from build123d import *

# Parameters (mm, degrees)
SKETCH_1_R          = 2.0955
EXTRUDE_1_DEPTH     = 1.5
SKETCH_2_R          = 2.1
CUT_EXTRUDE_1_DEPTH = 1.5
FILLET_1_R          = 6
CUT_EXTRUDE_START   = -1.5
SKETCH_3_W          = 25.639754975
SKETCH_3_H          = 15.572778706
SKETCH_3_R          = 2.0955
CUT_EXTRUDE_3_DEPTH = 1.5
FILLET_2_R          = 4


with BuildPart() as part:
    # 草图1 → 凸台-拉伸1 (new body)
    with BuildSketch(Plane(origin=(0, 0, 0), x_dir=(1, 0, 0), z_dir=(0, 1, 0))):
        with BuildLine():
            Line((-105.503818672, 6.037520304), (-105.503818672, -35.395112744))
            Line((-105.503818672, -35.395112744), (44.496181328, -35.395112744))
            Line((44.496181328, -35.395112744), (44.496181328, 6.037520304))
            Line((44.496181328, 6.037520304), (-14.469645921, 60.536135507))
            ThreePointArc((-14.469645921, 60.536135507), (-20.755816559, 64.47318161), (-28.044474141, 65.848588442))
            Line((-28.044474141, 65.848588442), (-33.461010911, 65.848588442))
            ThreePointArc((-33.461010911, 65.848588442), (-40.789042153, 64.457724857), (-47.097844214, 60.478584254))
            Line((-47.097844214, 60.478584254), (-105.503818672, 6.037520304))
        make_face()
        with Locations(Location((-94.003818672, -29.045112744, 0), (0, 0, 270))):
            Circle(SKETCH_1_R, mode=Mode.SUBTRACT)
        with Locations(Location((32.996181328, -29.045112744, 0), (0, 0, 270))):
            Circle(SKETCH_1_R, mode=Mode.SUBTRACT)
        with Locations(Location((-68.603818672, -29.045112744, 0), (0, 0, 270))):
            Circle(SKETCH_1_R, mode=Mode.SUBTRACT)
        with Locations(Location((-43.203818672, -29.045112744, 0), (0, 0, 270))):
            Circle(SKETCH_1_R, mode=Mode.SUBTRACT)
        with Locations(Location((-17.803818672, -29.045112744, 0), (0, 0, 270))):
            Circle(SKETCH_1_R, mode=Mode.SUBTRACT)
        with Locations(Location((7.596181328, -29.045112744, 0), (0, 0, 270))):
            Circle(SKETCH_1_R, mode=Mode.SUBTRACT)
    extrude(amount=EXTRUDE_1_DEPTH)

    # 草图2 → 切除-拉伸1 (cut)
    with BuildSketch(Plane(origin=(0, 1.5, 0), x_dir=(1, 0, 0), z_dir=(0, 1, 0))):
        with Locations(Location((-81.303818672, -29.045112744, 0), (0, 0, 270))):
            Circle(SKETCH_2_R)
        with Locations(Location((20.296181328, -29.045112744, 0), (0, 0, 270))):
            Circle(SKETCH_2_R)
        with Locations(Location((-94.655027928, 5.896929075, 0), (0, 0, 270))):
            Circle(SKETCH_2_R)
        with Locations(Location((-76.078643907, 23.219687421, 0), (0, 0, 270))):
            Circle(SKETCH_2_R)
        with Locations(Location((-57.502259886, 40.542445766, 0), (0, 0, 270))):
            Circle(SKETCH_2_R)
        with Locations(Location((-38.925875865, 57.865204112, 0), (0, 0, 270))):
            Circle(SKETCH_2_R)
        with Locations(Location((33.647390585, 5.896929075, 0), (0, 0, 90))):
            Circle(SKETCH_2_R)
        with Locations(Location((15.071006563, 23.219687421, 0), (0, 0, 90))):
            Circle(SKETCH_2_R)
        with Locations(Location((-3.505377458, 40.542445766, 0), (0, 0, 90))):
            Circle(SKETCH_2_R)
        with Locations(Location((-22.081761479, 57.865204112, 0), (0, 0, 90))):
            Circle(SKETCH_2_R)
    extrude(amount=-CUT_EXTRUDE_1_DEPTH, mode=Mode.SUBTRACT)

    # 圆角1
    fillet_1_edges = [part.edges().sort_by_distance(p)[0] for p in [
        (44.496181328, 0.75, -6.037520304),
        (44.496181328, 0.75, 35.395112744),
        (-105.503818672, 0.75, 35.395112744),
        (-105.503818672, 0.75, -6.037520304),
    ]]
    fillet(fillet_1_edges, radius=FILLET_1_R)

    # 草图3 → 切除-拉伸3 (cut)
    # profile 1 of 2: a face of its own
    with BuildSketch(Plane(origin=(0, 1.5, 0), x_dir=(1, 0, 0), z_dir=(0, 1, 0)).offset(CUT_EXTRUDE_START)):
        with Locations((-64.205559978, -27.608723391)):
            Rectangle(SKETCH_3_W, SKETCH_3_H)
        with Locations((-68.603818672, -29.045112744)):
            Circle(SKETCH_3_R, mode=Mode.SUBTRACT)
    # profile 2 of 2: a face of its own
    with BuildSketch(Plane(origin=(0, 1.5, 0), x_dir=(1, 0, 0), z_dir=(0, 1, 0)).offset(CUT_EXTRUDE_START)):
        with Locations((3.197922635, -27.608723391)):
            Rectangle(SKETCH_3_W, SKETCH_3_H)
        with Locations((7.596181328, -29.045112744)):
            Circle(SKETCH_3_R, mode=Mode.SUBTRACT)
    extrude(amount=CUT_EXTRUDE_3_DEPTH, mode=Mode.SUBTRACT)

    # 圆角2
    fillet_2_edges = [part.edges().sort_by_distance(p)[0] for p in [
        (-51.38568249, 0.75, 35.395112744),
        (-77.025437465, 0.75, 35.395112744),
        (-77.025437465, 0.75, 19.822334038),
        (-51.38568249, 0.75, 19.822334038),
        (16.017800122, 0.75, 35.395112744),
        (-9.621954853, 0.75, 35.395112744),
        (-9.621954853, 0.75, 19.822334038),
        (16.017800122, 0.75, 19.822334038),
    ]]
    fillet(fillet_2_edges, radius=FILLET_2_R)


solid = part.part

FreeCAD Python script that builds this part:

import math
import FreeCAD as App
import Part
import Sketcher
from FreeCAD import Vector


def edges_at(feature, points):
    """Names of the edges that pass closest to the given points."""
    edges = feature.Shape.Edges
    near = lambda p: min(range(len(edges)), key=lambda i: edges[i].distToShape(Part.Vertex(*p))[0])
    return sorted({f"Edge{near(p) + 1}" for p in points})


def add_polygon(sketch, points):
    """Adds a closed chain of lines whose ends are joined by coincident constraints."""
    first, n = sketch.GeometryCount, len(points)
    for a, b in zip(points, points[1:] + points[:1]):
        sketch.addGeometry(Part.LineSegment(App.Vector(*a, 0), App.Vector(*b, 0)), False)
    for i in range(n):
        sketch.addConstraint(Sketcher.Constraint("Coincident", first + i, 2, first + (i + 1) % n, 1))

doc = App.newDocument("Part")
body = doc.addObject("PartDesign::Body", "Body")

# Sketch on XZ plane
sketch1 = body.newObject("Sketcher::SketchObject", "Sketch")
sketch1.AttachmentSupport = (doc.getObject("XZ_Plane"), [""])
sketch1.MapMode = "FlatFace"
sketch1.addGeometry(Part.LineSegment(Vector(-105.503819, -6.03752, 0), Vector(-105.503819, 35.395113, 0)), False)
sketch1.addGeometry(Part.LineSegment(Vector(-105.503819, 35.395113, 0), Vector(44.496181, 35.395113, 0)), False)
sketch1.addGeometry(Part.LineSegment(Vector(44.496181, 35.395113, 0), Vector(44.496181, -6.03752, 0)), False)
sketch1.addGeometry(Part.LineSegment(Vector(44.496181, -6.03752, 0), Vector(-14.469646, -60.536136, 0)), False)
sketch1.addGeometry(Part.ArcOfCircle(Part.Circle(Vector(-28.044474, -45.848588, 0), Vector(0, 0, 1), 20), math.radians(-90), math.radians(-47.254629)), False)
sketch1.addGeometry(Part.LineSegment(Vector(-28.044474, -65.848588, 0), Vector(-33.461011, -65.848588, 0)), False)
sketch1.addGeometry(Part.ArcOfCircle(Part.Circle(Vector(-33.461011, -45.848588, 0), Vector(0, 0, 1), 20), math.radians(-132.987725), math.radians(-90)), False)
sketch1.addGeometry(Part.LineSegment(Vector(-47.097844, -60.478584, 0), Vector(-105.503819, -6.03752, 0)), False)
sketch1.addGeometry(Part.Circle(Vector(-94.003819, 29.045113, 0), Vector(0, 0, 1), 2.0955), False)
sketch1.addGeometry(Part.Circle(Vector(-68.603819, 29.045113, 0), Vector(0, 0, 1), 2.0955), False)
sketch1.addGeometry(Part.Circle(Vector(-43.203819, 29.045113, 0), Vector(0, 0, 1), 2.0955), False)
sketch1.addGeometry(Part.Circle(Vector(-17.803819, 29.045113, 0), Vector(0, 0, 1), 2.0955), False)
sketch1.addGeometry(Part.Circle(Vector(7.596181, 29.045113, 0), Vector(0, 0, 1), 2.0955), False)
sketch1.addGeometry(Part.Circle(Vector(32.996181, 29.045113, 0), Vector(0, 0, 1), 2.0955), False)
sketch1.addConstraint(Sketcher.Constraint("Coincident", 0, 2, 1, 1))
sketch1.addConstraint(Sketcher.Constraint("Coincident", 1, 2, 2, 1))
sketch1.addConstraint(Sketcher.Constraint("Coincident", 2, 2, 3, 1))
sketch1.addConstraint(Sketcher.Constraint("Tangent", 3, 2, 4, 2))
sketch1.addConstraint(Sketcher.Constraint("Tangent", 4, 1, 5, 1))
sketch1.addConstraint(Sketcher.Constraint("Tangent", 5, 2, 6, 2))
sketch1.addConstraint(Sketcher.Constraint("Tangent", 6, 1, 7, 1))
sketch1.addConstraint(Sketcher.Constraint("Coincident", 7, 2, 0, 1))
sketch1.addConstraint(Sketcher.Constraint("Vertical", 0))
sketch1.addConstraint(Sketcher.Constraint("Horizontal", 1))
sketch1.addConstraint(Sketcher.Constraint("Vertical", 2))
sketch1.addConstraint(Sketcher.Constraint("Horizontal", 5))
sketch1.addConstraint(Sketcher.Constraint("Equal", 4, 6))
sketch1.addConstraint(Sketcher.Constraint("Equal", 8, 9))
sketch1.addConstraint(Sketcher.Constraint("Equal", 9, 10))
sketch1.addConstraint(Sketcher.Constraint("Equal", 10, 11))
sketch1.addConstraint(Sketcher.Constraint("Equal", 11, 12))
sketch1.addConstraint(Sketcher.Constraint("Equal", 12, 13))
sketch1.addConstraint(Sketcher.Constraint("Horizontal", 8, 3, 9, 3))
sketch1.addConstraint(Sketcher.Constraint("Horizontal", 9, 3, 10, 3))
sketch1.addConstraint(Sketcher.Constraint("Horizontal", 10, 3, 11, 3))
sketch1.addConstraint(Sketcher.Constraint("Horizontal", 11, 3, 12, 3))
sketch1.addConstraint(Sketcher.Constraint("Horizontal", 12, 3, 13, 3))
sketch1.addConstraint(Sketcher.Constraint("Horizontal", 2, 2, 7, 2))
sketch1.addConstraint(Sketcher.Constraint("Radius", 4, 20.0))
sketch1.addConstraint(Sketcher.Constraint("DistanceX", 1, 1, 1, 2, 150.0))
sketch1.addConstraint(Sketcher.Constraint("Diameter", 8, 4.191))
sketch1.addConstraint(Sketcher.Constraint("DistanceX", 8, 3, 9, 3, 25.4))
sketch1.addConstraint(Sketcher.Constraint("DistanceX", 9, 3, 10, 3, 25.4))
sketch1.addConstraint(Sketcher.Constraint("DistanceX", 10, 3, 11, 3, 25.4))
sketch1.addConstraint(Sketcher.Constraint("DistanceX", 11, 3, 12, 3, 25.4))
sketch1.addConstraint(Sketcher.Constraint("DistanceX", 12, 3, 13, 3, 25.4))
sketch1.addConstraint(Sketcher.Constraint("DistanceX", 0, 2, 8, 3, 11.5))
sketch1.addConstraint(Sketcher.Constraint("DistanceY", 8, 3, 0, 2, 6.35))
sketch1.addConstraint(Sketcher.Constraint("DistanceY", 6, 3, 8, 3, 74.893701))
sketch1.addConstraint(Sketcher.Constraint("DistanceX", 6, 1, 3, 2, 32.628198))
sketch1.addConstraint(Sketcher.Constraint("DistanceX", 5, 2, 5, 1, 5.416537))
sketch1.addConstraint(Sketcher.Constraint("DistanceY", 4, 3, -1, 1, 45.848588))
sketch1.addConstraint(Sketcher.Constraint("DistanceX", 6, 3, -1, 1, 33.461011))
sketch1.addConstraint(Sketcher.Constraint("DistanceX", 8, 3, -1, 1, 94.003819))
pad1 = body.newObject("PartDesign::Pad", "Pad")
pad1.Profile = sketch1
pad1.Length = 1.5
pad1.Reversed = True

# Sketch on XZ plane
sketch2 = body.newObject("Sketcher::SketchObject", "Sketch001")
sketch2.AttachmentSupport = (doc.getObject("XZ_Plane"), [""])
sketch2.MapMode = "FlatFace"
sketch2.AttachmentOffset = App.Placement(Vector(0, 0, -1.5), App.Rotation())
sketch2.addGeometry(Part.Circle(Vector(-81.303819, 29.045113, 0), Vector(0, 0, 1), 2.1), False)
sketch2.addGeometry(Part.Circle(Vector(20.296181, 29.045113, 0), Vector(0, 0, 1), 2.1), False)
sketch2.addGeometry(Part.Circle(Vector(-94.655028, -5.896929, 0), Vector(0, 0, 1), 2.1), False)
sketch2.addGeometry(Part.Circle(Vector(-76.078644, -23.219687, 0), Vector(0, 0, 1), 2.1), False)
sketch2.addGeometry(Part.Circle(Vector(-57.50226, -40.542446, 0), Vector(0, 0, 1), 2.1), False)
sketch2.addGeometry(Part.Circle(Vector(-38.925876, -57.865204, 0), Vector(0, 0, 1), 2.1), False)
sketch2.addGeometry(Part.Circle(Vector(33.647391, -5.896929, 0), Vector(0, 0, 1), 2.1), False)
sketch2.addGeometry(Part.Circle(Vector(15.071007, -23.219687, 0), Vector(0, 0, 1), 2.1), False)
sketch2.addGeometry(Part.Circle(Vector(-3.505377, -40.542446, 0), Vector(0, 0, 1), 2.1), False)
sketch2.addGeometry(Part.Circle(Vector(-22.081761, -57.865204, 0), Vector(0, 0, 1), 2.1), False)
sketch2.addConstraint(Sketcher.Constraint("Equal", 0, 1))
sketch2.addConstraint(Sketcher.Constraint("Equal", 1, 2))
sketch2.addConstraint(Sketcher.Constraint("Equal", 2, 3))
sketch2.addConstraint(Sketcher.Constraint("Equal", 3, 4))
sketch2.addConstraint(Sketcher.Constraint("Equal", 4, 5))
sketch2.addConstraint(Sketcher.Constraint("Equal", 5, 6))
sketch2.addConstraint(Sketcher.Constraint("Equal", 6, 7))
sketch2.addConstraint(Sketcher.Constraint("Equal", 7, 8))
sketch2.addConstraint(Sketcher.Constraint("Equal", 8, 9))
sketch2.addConstraint(Sketcher.Constraint("Horizontal", 0, 3, 1, 3))
sketch2.addConstraint(Sketcher.Constraint("Horizontal", 2, 3, 6, 3))
sketch2.addConstraint(Sketcher.Constraint("Horizontal", 3, 3, 7, 3))
sketch2.addConstraint(Sketcher.Constraint("Horizontal", 4, 3, 8, 3))
sketch2.addConstraint(Sketcher.Constraint("Horizontal", 5, 3, 9, 3))
sketch2.addConstraint(Sketcher.Constraint("Diameter", 0, 4.2))
sketch2.addConstraint(Sketcher.Constraint("DistanceX", 0, 3, 1, 3, 101.6))
sketch2.addConstraint(Sketcher.Constraint("DistanceY", 3, 3, 0, 3, 52.2648))
sketch2.addConstraint(Sketcher.Constraint("DistanceX", 5, 3, 8, 3, 35.420498))
sketch2.addConstraint(Sketcher.Constraint("DistanceX", 4, 3, 9, 3, 35.420498))
sketch2.addConstraint(Sketcher.Constraint("DistanceX", 0, 3, -1, 1, 81.303819))
sketch2.addConstraint(Sketcher.Constraint("DistanceY", 2, 3, -1, 1, 5.896929))
sketch2.addConstraint(Sketcher.Constraint("DistanceX", 4, 3, -1, 1, 57.50226))
sketch2.addConstraint(Sketcher.Constraint("DistanceX", -1, 1, 6, 3, 33.647391))
sketch2.addConstraint(Sketcher.Constraint("DistanceX", 2, 3, 0, 3, 13.351209))
sketch2.addConstraint(Sketcher.Constraint("DistanceY", 2, 3, 0, 3, 34.942042))
sketch2.addConstraint(Sketcher.Constraint("DistanceY", 4, 3, 3, 3, 17.322758))
sketch2.addConstraint(Sketcher.Constraint("DistanceY", 5, 3, 4, 3, 17.322758))
sketch2.addConstraint(Sketcher.Constraint("DistanceX", 3, 3, 5, 3, 37.152768))
sketch2.addConstraint(Sketcher.Constraint("DistanceX", 3, 3, 7, 3, 91.14965))
sketch2.addConstraint(Sketcher.Constraint("DistanceX", 8, 3, 6, 3, 37.152768))
pocket1 = body.newObject("PartDesign::Pocket", "Pocket")
pocket1.Profile = sketch2
pocket1.Length = 1.5
pocket1.Reversed = True
doc.recompute()

fillet = body.newObject("PartDesign::Fillet", "Fillet")
fillet.Base = (pocket1, edges_at(pocket1, [
    (44.496, 0.75, -6.038),
    (44.496, 0.75, 35.395),
    (-105.504, 0.75, 35.395),
    (-105.504, 0.75, -6.038),
]))
fillet.Radius = 6

# Sketch on XZ plane
sketch3 = body.newObject("Sketcher::SketchObject", "Sketch002")
sketch3.AttachmentSupport = (doc.getObject("XZ_Plane"), [""])
sketch3.MapMode = "FlatFace"
add_polygon(sketch3, [(-77.025437, 19.822334), (-77.025437, 35.395113), (-51.385682, 35.395113), (-51.385682, 19.822334)])  # lines 0-3
sketch3.addGeometry(Part.Circle(Vector(-68.603819, 29.045113, 0), Vector(0, 0, 1), 2.0955), False)  # 4
add_polygon(sketch3, [(-9.621955, 19.822334), (-9.621955, 35.395113), (16.0178, 35.395113), (16.0178, 19.822334)])  # lines 5-8
sketch3.addGeometry(Part.Circle(Vector(7.596181, 29.045113, 0), Vector(0, 0, 1), 2.0955), False)  # 9
sketch3.addConstraint(Sketcher.Constraint("Vertical", 0))
sketch3.addConstraint(Sketcher.Constraint("Horizontal", 1))
sketch3.addConstraint(Sketcher.Constraint("Vertical", 2))
sketch3.addConstraint(Sketcher.Constraint("Horizontal", 3))
sketch3.addConstraint(Sketcher.Constraint("Vertical", 5))
sketch3.addConstraint(Sketcher.Constraint("Horizontal", 6))
sketch3.addConstraint(Sketcher.Constraint("Vertical", 7))
sketch3.addConstraint(Sketcher.Constraint("Horizontal", 8))
sketch3.addConstraint(Sketcher.Constraint("Equal", 4, 9))
sketch3.addConstraint(Sketcher.Constraint("Horizontal", 4, 3, 9, 3))
sketch3.addConstraint(Sketcher.Constraint("Horizontal", 1, 2, 5, 2))
sketch3.addConstraint(Sketcher.Constraint("Horizontal", 3, 2, 7, 2))
sketch3.addConstraint(Sketcher.Constraint("Equal", 3, 6))
sketch3.addConstraint(Sketcher.Constraint("Diameter", 4, 4.191))
sketch3.addConstraint(Sketcher.Constraint("DistanceX", 4, 3, 9, 3, 76.2))
sketch3.addConstraint(Sketcher.Constraint("DistanceY", 4, 3, 0, 2, 6.35))
sketch3.addConstraint(Sketcher.Constraint("DistanceY", 0, 1, 0, 2, 15.572779))
sketch3.addConstraint(Sketcher.Constraint("DistanceX", -1, 1, 6, 2, 16.0178))
sketch3.addConstraint(Sketcher.Constraint("DistanceX", 1, 1, 1, 2, 25.639755))
sketch3.addConstraint(Sketcher.Constraint("DistanceX", 4, 3, -1, 1, 68.603819))
sketch3.addConstraint(Sketcher.Constraint("DistanceX", 0, 2, 4, 3, 8.421619))
sketch3.addConstraint(Sketcher.Constraint("DistanceY", -1, 1, 4, 3, 29.045113))
pocket2 = body.newObject("PartDesign::Pocket", "Pocket001")
pocket2.Profile = sketch3
pocket2.Length = 1.5
doc.recompute()

fillet2 = body.newObject("PartDesign::Fillet", "Fillet001")
fillet2.Base = (pocket2, edges_at(pocket2, [
    (-51.386, 0.75, 35.395),
    (-77.025, 0.75, 35.395),
    (-77.025, 0.75, 19.822),
    (-51.386, 0.75, 19.822),
    (16.018, 0.75, 35.395),
    (-9.622, 0.75, 35.395),
    (-9.622, 0.75, 19.822),
    (16.018, 0.75, 19.822),
]))
fillet2.Radius = 4

doc.recompute()
